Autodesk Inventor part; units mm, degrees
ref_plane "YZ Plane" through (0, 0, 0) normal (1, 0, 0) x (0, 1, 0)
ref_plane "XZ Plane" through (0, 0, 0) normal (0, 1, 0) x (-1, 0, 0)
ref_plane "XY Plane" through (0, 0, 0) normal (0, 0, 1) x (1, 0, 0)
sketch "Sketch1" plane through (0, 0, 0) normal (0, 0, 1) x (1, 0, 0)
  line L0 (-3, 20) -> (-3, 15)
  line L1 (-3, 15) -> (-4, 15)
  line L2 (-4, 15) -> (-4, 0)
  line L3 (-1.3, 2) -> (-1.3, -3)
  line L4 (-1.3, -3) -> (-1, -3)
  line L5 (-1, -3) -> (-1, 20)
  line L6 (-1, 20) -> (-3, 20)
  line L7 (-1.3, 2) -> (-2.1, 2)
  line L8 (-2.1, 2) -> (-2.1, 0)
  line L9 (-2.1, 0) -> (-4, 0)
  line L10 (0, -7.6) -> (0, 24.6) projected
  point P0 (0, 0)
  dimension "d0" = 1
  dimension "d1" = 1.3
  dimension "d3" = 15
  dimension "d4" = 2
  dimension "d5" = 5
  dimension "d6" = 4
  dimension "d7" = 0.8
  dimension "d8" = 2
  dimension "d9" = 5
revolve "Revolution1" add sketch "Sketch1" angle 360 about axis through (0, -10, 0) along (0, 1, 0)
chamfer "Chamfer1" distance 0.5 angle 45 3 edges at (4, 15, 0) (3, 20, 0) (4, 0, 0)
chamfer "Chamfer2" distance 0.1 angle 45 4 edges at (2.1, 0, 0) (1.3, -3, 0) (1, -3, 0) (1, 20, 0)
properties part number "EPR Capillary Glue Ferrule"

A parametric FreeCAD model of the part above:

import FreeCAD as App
import Part
import Sketcher
from FreeCAD import Vector
Q = App.Units.Quantity


def edges_at(feature, points):
    """Names of the edges that pass closest to the given points."""
    edges = feature.Shape.Edges
    near = lambda p: min(range(len(edges)), key=lambda i: edges[i].distToShape(Part.Vertex(*p))[0])
    return sorted({f"Edge{near(p) + 1}" for p in points})


def add_polygon(sketch, points):
    """Adds a closed chain of lines whose ends are joined by coincident constraints."""
    first, n = sketch.GeometryCount, len(points)
    for a, b in zip(points, points[1:] + points[:1]):
        sketch.addGeometry(Part.LineSegment(App.Vector(*a, 0), App.Vector(*b, 0)), False)
    for i in range(n):
        sketch.addConstraint(Sketcher.Constraint("Coincident", first + i, 2, first + (i + 1) % n, 1))

doc = App.newDocument("Part")
body = doc.addObject("PartDesign::Body", "Body")

# Sketch on XY plane
sketch1 = body.newObject("Sketcher::SketchObject", "Sketch")
sketch1.AttachmentSupport = (doc.getObject("XY_Plane"), [""])
sketch1.MapMode = "FlatFace"
add_polygon(sketch1, [(-1, 20), (-3, 20), (-3, 15), (-4, 15), (-4, 0), (-2.1, 0), (-2.1, 2), (-1.3, 2), (-1.3, -3), (-1, -3)])  # lines 0-9
sketch1.addConstraint([
    Sketcher.Constraint("Horizontal", 0),
    Sketcher.Constraint("Vertical", 1),
    Sketcher.Constraint("Horizontal", 2),
    Sketcher.Constraint("Vertical", 3),
    Sketcher.Constraint("Horizontal", 4),
    Sketcher.Constraint("Vertical", 5),
    Sketcher.Constraint("Horizontal", 6),
    Sketcher.Constraint("Vertical", 7),
    Sketcher.Constraint("Horizontal", 8),
    Sketcher.Constraint("Vertical", 9),
    Sketcher.Constraint("PointOnObject", 3, 2, -1),
    Sketcher.Constraint("Equal", 0, 5),
    Sketcher.Constraint("Equal", 1, 7),
    Sketcher.Constraint("DistanceX", 0, 2, 0, 1, Q("2 mm")),
    Sketcher.Constraint("DistanceX", 2, 2, 2, 1, Q("1 mm")),
    Sketcher.Constraint("DistanceY", 1, 2, 1, 1, Q("5 mm")),
    Sketcher.Constraint("DistanceY", 3, 2, 3, 1, Q("15 mm")),
    Sketcher.Constraint("DistanceX", 6, 1, 6, 2, Q("0.8 mm")),
    Sketcher.Constraint("DistanceX", 2, 2, -1, 1, Q("4 mm")),
    Sketcher.Constraint("DistanceX", 6, 2, -1, 1, Q("1.3 mm")),
])
revolution = body.newObject("PartDesign::Revolution", "Revolution")
revolution.Profile = sketch1
revolution.ReferenceAxis = (sketch1, ["V_Axis"])
revolution.Angle = 360
doc.recompute()

chamfer = body.newObject("PartDesign::Chamfer", "Chamfer")
chamfer.Base = (revolution, edges_at(revolution, [(4, 15, 0), (3, 20, 0), (4, 0, 0)]))
chamfer.Size = 0.5
doc.recompute()

chamfer2 = body.newObject("PartDesign::Chamfer", "Chamfer001")
chamfer2.Base = (chamfer, edges_at(chamfer, [
    (2.1, 0, 0),
    (1.3, -3, 0),
    (1, -3, 0),
    (1, 20, 0),
]))
chamfer2.Size = 0.1

doc.recompute()
